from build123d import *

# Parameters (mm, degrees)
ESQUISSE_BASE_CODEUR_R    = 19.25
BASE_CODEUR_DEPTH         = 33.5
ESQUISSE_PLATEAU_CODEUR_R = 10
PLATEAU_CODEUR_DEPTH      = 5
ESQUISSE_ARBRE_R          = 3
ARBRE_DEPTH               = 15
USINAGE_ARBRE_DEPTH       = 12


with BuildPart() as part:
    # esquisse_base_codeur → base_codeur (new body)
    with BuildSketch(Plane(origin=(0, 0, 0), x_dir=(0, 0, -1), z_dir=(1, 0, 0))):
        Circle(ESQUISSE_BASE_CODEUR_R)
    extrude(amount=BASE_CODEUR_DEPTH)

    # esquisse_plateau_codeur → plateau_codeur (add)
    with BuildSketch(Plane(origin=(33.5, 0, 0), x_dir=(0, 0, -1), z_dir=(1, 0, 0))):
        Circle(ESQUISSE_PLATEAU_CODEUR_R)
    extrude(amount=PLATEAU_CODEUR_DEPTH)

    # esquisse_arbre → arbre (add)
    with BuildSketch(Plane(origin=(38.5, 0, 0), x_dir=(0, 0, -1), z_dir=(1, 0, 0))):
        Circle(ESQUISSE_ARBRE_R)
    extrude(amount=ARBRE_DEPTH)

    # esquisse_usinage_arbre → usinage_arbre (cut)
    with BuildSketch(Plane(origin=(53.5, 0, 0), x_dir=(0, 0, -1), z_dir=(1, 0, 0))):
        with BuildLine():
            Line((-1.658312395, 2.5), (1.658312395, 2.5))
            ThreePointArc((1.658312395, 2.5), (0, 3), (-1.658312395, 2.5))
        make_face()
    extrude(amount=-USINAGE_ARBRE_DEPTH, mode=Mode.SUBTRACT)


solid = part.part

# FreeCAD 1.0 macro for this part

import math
import FreeCAD as App
import Part
import Sketcher
Q = App.Units.Quantity

doc = App.newDocument("Part")
body = doc.addObject("PartDesign::Body", "Body")

sketch1 = body.newObject("Sketcher::SketchObject", "Sketch")
sketch1.AttachmentSupport = (doc.getObject("YZ_Plane"), [""])
sketch1.MapMode = "FlatFace"
sketch1.addGeometry(Part.Circle(App.Vector(0, 0, 0), App.Vector(0, 0, 1), 19), False)
sketch1.addConstraint([
    Sketcher.Constraint("Coincident", 0, 3, -1, 1),
    Sketcher.Constraint("Diameter", 0, Q("38.5 mm")),
])
pad1 = body.newObject("PartDesign::Pad", "Pad")
pad1.Profile = sketch1
pad1.Length = 33.5

sketch2 = body.newObject("Sketcher::SketchObject", "Sketch001")
sketch2.AttachmentSupport = (doc.getObject("YZ_Plane"), [""])
sketch2.MapMode = "FlatFace"
sketch2.AttachmentOffset = App.Placement(App.Vector(0, 0, 33.5), App.Rotation())
sketch2.addGeometry(Part.Circle(App.Vector(0, 0, 0), App.Vector(0, 0, 1), 10), False)
sketch2.addConstraint([
    Sketcher.Constraint("Coincident", 0, 3, -1, 1),
    Sketcher.Constraint("Diameter", 0, Q("20 mm")),
])
pad2 = body.newObject("PartDesign::Pad", "Pad001")
pad2.Profile = sketch2
pad2.Length = 5

sketch3 = body.newObject("Sketcher::SketchObject", "Sketch002")
sketch3.AttachmentSupport = (doc.getObject("YZ_Plane"), [""])
sketch3.MapMode = "FlatFace"
sketch3.AttachmentOffset = App.Placement(App.Vector(0, 0, 38.5), App.Rotation())
sketch3.addGeometry(Part.Circle(App.Vector(0, 0, 0), App.Vector(0, 0, 1), 3), False)
sketch3.addConstraint([
    Sketcher.Constraint("Coincident", 0, 3, -1, 1),
    Sketcher.Constraint("Diameter", 0, Q("6 mm")),
])
pad3 = body.newObject("PartDesign::Pad", "Pad002")
pad3.Profile = sketch3
pad3.Length = 15

sketch4 = body.newObject("Sketcher::SketchObject", "Sketch003")
sketch4.AttachmentSupport = (doc.getObject("YZ_Plane"), [""])
sketch4.MapMode = "FlatFace"
sketch4.AttachmentOffset = App.Placement(App.Vector(0, 0, 53.5), App.Rotation())
sketch4.addGeometry([
    Part.LineSegment(App.Vector(2.5, 1.7, 0), App.Vector(2.5, -1.7, 0)),
    Part.ArcOfCircle(Part.Circle(App.Vector(0, 0, 0), App.Vector(0, 0, 1), 3), math.radians(-34), math.radians(34)),
], False)
sketch4.addConstraint([
    Sketcher.Constraint("Coincident", 0, 1, 1, 2),
    Sketcher.Constraint("Coincident", 1, 1, 0, 2),
    Sketcher.Constraint("Vertical", 0),
    Sketcher.Constraint("Coincident", 1, 3, -1, 1),
    Sketcher.Constraint("Radius", 1, Q("3 mm")),
    Sketcher.Constraint("DistanceX", -1, 1, 0, 1, Q("2.5 mm")),
])
pocket1 = body.newObject("PartDesign::Pocket", "Pocket")
pocket1.Profile = sketch4
pocket1.Length = 12

doc.recompute()
